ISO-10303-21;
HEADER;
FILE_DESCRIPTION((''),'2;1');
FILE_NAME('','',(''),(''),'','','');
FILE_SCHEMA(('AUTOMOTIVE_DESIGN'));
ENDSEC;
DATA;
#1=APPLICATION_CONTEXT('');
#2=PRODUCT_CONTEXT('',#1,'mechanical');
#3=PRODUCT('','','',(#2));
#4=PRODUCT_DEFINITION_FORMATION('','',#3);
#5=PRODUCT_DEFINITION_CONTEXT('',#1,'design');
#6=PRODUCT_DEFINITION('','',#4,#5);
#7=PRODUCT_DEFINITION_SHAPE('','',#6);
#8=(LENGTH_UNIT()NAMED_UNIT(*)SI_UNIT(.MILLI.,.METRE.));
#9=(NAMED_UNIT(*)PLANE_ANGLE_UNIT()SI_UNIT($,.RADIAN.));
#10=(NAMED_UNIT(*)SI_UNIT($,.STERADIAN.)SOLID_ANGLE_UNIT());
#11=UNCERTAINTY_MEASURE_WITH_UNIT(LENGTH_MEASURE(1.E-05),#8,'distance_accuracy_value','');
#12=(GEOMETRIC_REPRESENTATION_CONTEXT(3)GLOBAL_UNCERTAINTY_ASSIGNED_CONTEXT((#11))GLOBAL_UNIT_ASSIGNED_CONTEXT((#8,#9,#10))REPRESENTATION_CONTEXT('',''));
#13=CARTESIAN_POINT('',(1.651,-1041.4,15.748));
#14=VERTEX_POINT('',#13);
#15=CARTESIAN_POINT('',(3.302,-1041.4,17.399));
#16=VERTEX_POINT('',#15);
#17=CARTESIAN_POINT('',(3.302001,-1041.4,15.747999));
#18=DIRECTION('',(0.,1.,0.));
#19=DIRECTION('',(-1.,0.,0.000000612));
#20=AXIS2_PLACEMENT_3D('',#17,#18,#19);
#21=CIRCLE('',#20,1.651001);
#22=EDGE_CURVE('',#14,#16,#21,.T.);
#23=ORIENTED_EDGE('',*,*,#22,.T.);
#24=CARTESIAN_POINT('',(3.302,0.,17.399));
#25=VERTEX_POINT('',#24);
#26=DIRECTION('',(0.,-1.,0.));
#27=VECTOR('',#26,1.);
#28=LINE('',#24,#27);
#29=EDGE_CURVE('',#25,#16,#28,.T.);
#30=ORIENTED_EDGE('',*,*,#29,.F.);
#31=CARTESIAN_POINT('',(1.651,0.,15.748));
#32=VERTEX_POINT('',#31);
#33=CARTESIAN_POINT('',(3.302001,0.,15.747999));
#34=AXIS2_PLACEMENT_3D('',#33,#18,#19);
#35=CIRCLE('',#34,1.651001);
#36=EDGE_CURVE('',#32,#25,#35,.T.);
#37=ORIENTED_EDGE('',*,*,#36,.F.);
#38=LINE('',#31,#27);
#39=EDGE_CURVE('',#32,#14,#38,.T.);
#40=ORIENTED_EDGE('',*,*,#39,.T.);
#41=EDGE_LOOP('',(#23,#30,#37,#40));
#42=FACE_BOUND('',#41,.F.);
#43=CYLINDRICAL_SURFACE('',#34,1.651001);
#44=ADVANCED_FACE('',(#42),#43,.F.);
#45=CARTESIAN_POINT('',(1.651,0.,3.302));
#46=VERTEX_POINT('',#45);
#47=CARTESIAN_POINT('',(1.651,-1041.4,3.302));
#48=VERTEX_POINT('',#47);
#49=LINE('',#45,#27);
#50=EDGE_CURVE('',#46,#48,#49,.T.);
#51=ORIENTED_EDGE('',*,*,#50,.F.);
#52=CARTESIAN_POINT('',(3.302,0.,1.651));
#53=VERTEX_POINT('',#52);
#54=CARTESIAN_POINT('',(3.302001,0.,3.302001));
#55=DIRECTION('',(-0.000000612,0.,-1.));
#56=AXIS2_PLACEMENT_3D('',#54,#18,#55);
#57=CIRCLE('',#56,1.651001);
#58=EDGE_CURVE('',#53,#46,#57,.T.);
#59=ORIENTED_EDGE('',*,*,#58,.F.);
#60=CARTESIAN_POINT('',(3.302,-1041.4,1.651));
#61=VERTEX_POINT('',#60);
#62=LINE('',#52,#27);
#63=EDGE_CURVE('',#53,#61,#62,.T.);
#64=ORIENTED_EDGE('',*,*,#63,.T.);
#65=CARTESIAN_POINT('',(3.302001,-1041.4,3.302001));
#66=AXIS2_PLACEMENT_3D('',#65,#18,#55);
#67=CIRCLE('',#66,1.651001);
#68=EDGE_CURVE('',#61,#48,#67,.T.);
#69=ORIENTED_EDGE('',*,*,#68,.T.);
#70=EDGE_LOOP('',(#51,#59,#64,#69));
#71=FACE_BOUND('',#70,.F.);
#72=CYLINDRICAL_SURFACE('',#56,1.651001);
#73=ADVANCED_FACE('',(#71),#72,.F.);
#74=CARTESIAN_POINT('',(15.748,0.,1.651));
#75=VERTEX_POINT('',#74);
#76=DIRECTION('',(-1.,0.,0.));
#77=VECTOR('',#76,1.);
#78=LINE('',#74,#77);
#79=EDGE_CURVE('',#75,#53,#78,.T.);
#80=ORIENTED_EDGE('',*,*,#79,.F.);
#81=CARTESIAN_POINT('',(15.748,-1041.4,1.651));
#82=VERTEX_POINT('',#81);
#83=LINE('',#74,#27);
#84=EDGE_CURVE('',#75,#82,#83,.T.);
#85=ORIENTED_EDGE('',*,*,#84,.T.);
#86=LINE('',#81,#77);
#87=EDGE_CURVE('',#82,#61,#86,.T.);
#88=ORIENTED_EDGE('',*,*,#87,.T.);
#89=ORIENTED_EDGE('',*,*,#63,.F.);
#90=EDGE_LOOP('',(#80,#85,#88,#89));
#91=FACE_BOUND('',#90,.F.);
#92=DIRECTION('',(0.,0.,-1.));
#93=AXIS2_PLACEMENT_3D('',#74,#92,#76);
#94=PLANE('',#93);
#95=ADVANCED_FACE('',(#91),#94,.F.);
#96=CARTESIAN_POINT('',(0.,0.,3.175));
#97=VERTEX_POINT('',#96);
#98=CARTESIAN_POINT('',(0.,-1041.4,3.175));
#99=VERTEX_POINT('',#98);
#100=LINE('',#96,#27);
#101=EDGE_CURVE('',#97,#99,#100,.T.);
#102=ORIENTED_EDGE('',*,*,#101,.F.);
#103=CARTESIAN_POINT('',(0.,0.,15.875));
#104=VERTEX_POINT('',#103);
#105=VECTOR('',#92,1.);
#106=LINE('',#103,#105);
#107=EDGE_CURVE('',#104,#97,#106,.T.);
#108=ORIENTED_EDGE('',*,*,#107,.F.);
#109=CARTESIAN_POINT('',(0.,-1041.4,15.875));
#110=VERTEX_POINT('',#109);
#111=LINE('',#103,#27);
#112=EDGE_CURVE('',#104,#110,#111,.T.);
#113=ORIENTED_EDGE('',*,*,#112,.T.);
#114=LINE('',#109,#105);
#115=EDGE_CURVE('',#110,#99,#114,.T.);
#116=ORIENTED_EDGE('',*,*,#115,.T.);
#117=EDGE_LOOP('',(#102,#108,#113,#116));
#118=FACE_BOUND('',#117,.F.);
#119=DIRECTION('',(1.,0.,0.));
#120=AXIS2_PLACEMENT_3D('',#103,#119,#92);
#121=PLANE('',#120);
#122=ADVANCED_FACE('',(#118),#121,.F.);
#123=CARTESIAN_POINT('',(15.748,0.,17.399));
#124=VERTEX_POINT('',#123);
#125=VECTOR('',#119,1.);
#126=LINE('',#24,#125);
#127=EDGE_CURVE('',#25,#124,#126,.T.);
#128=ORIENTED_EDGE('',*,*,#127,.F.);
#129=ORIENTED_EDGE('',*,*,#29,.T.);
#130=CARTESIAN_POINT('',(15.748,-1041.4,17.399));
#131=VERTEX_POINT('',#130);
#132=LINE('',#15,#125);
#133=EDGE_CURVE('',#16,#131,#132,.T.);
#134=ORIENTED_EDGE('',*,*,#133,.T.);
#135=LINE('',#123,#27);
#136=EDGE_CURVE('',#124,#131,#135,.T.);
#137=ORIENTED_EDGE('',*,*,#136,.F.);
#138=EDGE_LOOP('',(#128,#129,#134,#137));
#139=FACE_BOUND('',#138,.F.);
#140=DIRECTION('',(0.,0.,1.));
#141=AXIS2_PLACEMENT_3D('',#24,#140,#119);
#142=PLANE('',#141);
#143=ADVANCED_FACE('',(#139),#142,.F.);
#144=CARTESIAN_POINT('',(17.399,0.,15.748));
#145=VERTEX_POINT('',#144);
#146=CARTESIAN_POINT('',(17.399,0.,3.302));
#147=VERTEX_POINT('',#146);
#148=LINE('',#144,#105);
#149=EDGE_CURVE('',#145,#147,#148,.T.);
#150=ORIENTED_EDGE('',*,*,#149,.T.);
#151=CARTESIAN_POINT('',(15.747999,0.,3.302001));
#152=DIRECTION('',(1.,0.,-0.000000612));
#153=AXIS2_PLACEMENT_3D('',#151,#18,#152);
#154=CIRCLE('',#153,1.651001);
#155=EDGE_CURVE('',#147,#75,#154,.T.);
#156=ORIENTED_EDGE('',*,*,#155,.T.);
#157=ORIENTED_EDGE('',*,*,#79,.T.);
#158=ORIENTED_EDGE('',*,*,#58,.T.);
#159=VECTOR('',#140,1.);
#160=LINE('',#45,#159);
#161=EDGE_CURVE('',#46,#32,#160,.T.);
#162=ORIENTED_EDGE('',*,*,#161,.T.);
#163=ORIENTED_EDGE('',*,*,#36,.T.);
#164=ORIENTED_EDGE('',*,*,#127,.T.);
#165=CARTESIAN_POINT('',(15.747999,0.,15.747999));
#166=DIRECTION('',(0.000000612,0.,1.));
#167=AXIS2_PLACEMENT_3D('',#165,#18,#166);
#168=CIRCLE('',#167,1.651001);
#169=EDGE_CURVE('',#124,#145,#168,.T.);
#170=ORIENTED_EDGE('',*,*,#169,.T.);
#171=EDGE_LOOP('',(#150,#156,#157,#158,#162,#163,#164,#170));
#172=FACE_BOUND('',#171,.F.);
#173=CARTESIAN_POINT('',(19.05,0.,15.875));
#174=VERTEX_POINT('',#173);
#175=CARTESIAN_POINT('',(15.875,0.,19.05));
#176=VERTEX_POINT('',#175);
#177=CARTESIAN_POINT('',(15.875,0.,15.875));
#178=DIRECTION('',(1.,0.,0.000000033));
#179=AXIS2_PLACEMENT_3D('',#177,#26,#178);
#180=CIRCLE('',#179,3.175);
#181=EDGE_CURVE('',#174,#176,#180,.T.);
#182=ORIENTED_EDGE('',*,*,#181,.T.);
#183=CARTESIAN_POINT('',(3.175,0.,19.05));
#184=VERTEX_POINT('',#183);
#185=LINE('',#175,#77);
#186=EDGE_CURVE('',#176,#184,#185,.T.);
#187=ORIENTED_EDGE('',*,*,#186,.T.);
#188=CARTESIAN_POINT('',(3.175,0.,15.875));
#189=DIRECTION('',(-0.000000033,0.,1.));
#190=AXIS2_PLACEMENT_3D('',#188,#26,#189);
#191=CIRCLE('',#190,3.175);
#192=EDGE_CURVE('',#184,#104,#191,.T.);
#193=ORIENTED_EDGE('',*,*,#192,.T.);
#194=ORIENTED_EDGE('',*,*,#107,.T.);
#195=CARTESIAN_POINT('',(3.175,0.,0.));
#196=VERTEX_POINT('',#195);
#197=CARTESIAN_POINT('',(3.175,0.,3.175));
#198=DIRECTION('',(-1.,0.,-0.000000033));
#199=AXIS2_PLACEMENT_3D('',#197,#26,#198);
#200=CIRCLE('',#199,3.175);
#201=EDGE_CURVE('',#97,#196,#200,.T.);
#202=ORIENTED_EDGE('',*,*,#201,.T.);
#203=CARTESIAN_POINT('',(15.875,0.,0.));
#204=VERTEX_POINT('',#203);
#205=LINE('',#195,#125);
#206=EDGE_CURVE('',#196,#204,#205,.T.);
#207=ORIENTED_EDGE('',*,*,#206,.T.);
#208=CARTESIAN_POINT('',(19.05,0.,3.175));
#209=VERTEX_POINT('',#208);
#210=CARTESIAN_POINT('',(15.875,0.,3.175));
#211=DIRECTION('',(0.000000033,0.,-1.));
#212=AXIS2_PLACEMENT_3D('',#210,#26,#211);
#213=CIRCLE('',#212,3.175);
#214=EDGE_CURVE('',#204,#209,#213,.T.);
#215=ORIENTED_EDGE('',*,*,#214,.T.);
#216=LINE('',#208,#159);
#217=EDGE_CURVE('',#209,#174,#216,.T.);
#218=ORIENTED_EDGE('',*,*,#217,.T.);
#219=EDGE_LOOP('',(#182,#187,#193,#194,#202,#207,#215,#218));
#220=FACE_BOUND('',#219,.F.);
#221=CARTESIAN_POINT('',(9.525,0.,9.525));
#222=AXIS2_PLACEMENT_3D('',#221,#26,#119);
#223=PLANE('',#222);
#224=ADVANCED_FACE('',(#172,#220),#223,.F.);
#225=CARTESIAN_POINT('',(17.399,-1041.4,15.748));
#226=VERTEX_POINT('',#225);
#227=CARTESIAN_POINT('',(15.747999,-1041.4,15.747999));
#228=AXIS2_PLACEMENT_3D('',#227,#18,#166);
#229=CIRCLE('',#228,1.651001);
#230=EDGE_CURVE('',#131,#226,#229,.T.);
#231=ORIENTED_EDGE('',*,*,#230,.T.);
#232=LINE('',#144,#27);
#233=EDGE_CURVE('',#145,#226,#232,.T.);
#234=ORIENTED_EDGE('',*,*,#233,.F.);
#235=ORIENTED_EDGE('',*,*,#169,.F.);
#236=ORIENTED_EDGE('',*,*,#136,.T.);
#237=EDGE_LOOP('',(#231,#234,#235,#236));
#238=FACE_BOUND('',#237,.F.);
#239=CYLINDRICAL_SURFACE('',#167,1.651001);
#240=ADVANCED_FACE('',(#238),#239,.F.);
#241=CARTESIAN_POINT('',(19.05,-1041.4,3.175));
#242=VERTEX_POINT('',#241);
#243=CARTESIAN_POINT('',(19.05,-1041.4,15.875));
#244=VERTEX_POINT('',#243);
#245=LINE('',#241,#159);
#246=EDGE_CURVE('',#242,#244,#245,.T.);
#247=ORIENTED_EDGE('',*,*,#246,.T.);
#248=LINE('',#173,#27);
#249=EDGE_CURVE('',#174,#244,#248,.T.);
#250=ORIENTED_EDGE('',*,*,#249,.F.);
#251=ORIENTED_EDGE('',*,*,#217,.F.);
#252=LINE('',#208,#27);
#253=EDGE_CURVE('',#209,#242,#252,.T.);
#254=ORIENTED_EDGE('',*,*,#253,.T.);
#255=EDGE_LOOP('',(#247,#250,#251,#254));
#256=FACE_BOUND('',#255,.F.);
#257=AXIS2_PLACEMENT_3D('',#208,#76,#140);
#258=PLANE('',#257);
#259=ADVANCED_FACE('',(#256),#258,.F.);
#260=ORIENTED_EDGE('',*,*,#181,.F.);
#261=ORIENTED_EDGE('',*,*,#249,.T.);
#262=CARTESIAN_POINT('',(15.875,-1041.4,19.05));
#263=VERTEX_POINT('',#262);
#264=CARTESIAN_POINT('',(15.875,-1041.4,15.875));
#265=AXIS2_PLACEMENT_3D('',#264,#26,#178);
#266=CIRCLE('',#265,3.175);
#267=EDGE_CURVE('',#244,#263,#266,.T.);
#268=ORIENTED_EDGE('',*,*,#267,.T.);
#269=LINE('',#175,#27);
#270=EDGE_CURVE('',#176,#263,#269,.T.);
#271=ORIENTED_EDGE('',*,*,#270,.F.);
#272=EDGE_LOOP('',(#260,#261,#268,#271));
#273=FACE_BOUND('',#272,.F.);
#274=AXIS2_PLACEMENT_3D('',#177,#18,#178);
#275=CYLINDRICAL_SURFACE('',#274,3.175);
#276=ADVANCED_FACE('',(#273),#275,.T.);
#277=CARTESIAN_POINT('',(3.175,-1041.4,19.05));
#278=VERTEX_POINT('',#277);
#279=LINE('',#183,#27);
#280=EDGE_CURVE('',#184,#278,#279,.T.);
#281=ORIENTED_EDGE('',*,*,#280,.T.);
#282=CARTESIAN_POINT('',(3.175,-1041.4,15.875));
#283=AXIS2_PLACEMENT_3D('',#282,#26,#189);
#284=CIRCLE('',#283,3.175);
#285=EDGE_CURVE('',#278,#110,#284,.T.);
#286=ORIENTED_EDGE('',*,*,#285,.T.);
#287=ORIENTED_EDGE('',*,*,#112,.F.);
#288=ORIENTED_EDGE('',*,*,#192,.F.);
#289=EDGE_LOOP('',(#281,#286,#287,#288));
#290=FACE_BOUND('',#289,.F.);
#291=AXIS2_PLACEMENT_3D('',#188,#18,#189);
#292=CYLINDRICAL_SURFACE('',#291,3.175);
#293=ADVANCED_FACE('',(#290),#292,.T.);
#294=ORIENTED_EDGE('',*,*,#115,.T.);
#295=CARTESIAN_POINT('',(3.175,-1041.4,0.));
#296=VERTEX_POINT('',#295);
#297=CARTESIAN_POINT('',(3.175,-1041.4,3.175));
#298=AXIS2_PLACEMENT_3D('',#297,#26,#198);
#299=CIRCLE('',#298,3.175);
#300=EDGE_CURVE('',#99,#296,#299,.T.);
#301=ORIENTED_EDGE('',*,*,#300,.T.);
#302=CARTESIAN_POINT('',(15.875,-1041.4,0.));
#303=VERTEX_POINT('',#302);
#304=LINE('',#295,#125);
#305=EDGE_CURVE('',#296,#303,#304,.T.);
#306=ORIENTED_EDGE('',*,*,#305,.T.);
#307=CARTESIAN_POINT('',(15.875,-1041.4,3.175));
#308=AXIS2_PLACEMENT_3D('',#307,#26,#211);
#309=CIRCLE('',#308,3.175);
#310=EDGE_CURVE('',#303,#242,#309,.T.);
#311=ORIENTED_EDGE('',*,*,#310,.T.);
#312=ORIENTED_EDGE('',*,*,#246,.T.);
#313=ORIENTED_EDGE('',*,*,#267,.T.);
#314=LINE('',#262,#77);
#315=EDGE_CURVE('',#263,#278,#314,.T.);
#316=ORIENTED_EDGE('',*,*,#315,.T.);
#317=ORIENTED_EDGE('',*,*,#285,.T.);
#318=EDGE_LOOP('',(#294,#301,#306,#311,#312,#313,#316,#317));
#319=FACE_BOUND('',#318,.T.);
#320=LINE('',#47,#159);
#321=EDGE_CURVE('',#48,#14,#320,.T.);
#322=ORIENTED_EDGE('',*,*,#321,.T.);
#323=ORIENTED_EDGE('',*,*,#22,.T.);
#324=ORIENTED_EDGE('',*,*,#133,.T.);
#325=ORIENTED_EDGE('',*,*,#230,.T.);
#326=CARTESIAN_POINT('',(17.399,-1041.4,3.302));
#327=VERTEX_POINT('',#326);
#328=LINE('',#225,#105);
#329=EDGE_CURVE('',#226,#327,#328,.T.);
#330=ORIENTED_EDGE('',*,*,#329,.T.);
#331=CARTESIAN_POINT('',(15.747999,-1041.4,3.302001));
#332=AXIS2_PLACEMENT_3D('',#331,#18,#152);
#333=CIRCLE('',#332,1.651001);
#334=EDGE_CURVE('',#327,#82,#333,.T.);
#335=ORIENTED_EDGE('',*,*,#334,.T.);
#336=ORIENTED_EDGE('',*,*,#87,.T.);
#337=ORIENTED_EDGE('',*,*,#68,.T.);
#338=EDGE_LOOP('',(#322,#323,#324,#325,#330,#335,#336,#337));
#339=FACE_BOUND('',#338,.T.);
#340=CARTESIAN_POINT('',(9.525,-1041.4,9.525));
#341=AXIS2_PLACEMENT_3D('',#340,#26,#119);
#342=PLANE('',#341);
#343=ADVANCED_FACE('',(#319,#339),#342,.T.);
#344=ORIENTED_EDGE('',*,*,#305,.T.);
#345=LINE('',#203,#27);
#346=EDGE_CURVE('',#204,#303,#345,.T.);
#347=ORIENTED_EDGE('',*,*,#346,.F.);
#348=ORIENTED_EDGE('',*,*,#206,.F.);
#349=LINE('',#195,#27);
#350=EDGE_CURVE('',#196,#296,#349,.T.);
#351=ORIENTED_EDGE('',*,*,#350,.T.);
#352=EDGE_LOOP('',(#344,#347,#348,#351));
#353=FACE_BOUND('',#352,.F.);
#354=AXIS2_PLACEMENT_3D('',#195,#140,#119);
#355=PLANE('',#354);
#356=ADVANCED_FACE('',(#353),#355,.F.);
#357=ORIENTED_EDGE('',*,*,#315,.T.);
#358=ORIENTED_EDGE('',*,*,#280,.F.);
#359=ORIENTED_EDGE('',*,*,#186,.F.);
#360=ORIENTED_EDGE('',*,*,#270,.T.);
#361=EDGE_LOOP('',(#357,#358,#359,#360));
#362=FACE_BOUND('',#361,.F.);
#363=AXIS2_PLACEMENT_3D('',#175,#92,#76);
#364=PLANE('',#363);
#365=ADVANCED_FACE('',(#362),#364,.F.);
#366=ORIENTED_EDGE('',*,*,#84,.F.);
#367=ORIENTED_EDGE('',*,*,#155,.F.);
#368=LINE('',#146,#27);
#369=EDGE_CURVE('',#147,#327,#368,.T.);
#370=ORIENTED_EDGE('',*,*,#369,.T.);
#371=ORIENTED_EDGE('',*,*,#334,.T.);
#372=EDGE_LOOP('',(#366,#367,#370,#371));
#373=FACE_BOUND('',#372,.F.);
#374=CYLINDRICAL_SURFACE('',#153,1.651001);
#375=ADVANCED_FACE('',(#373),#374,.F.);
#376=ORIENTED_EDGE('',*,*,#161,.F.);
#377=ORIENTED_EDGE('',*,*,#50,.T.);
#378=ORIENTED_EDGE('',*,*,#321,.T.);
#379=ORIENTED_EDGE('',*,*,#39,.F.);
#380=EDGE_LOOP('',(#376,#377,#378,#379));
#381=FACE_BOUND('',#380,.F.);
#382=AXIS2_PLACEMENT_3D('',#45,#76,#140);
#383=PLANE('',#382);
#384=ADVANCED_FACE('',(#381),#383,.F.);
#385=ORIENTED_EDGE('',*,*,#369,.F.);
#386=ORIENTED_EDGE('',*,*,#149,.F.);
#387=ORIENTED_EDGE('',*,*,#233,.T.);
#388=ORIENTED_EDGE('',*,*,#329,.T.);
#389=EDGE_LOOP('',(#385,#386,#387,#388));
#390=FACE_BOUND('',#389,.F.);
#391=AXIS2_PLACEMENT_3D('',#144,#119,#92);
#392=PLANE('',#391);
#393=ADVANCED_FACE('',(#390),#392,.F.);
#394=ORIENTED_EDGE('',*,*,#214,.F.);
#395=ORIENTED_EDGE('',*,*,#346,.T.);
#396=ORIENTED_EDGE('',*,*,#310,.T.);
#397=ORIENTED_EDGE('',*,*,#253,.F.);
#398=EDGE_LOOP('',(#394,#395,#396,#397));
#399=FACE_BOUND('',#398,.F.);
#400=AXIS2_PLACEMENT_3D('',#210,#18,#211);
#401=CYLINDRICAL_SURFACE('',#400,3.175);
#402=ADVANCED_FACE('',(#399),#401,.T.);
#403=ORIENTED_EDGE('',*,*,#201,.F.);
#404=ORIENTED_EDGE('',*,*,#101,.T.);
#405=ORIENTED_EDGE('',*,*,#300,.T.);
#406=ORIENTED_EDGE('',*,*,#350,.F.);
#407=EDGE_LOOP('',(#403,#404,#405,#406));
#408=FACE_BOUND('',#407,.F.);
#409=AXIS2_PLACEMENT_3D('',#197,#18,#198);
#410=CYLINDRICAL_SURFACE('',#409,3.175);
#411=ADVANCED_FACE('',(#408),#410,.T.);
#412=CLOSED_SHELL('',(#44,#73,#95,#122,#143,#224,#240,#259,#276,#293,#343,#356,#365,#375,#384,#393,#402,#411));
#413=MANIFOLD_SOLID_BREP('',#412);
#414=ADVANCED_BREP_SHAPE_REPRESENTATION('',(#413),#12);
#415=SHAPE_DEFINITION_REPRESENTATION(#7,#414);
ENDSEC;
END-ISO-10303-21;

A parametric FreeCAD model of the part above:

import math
import FreeCAD as App
import Part
import Sketcher
Q = App.Units.Quantity

doc = App.newDocument("Part")
body = doc.addObject("PartDesign::Body", "Body")

# Sketch on XZ plane
sketch1 = doc.addObject("Sketcher::SketchObject", "Sketch")
body.addObject(sketch1)
sketch1.AttachmentSupport = (doc.XZ_Plane, [""])
sketch1.MapMode = "FlatFace"
sketch1.addGeometry(Part.ArcOfCircle(Part.Circle(App.Vector(3.2, 3.2, 0), App.Vector(0, 0, 1), 3.2), math.radians(-180), math.radians(-90)), False)
sketch1.addGeometry(Part.LineSegment(App.Vector(3.2, 0, 0), App.Vector(15.9, 0, 0)), False)
sketch1.addGeometry(Part.ArcOfCircle(Part.Circle(App.Vector(15.9, 3.2, 0), App.Vector(0, 0, 1), 3.2), math.radians(-90), math.radians(0)), False)
sketch1.addGeometry(Part.LineSegment(App.Vector(19.1, 3.2, 0), App.Vector(19.1, 15.9, 0)), False)
sketch1.addGeometry(Part.ArcOfCircle(Part.Circle(App.Vector(15.9, 15.9, 0), App.Vector(0, 0, 1), 3.2), math.radians(0), math.radians(90)), False)
sketch1.addGeometry(Part.LineSegment(App.Vector(15.9, 19.1, 0), App.Vector(3.2, 19.1, 0)), False)
sketch1.addGeometry(Part.ArcOfCircle(Part.Circle(App.Vector(3.2, 15.9, 0), App.Vector(0, 0, 1), 3.2), math.radians(90), math.radians(180)), False)
sketch1.addGeometry(Part.LineSegment(App.Vector(0, 15.9, 0), App.Vector(0, 3.2, 0)), False)
sketch1.addGeometry(Part.ArcOfCircle(Part.Circle(App.Vector(15.7, 15.7, 0), App.Vector(0, 0, 1), 1.7), math.radians(0), math.radians(90)), False)
sketch1.addGeometry(Part.LineSegment(App.Vector(17.4, 15.7, 0), App.Vector(17.4, 3.3, 0)), False)
sketch1.addGeometry(Part.ArcOfCircle(Part.Circle(App.Vector(15.7, 3.3, 0), App.Vector(0, 0, 1), 1.7), math.radians(-90), math.radians(0)), False)
sketch1.addGeometry(Part.LineSegment(App.Vector(15.7, 1.7, 0), App.Vector(3.3, 1.7, 0)), False)
sketch1.addGeometry(Part.ArcOfCircle(Part.Circle(App.Vector(3.3, 3.3, 0), App.Vector(0, 0, 1), 1.7), math.radians(-180), math.radians(-90)), False)
sketch1.addGeometry(Part.LineSegment(App.Vector(1.7, 3.3, 0), App.Vector(1.7, 15.7, 0)), False)
sketch1.addGeometry(Part.ArcOfCircle(Part.Circle(App.Vector(3.3, 15.7, 0), App.Vector(0, 0, 1), 1.7), math.radians(90), math.radians(180)), False)
sketch1.addGeometry(Part.LineSegment(App.Vector(3.3, 17.4, 0), App.Vector(15.7, 17.4, 0)), False)
sketch1.addConstraint(Sketcher.Constraint("Tangent", 0, 2, 1, 1))
sketch1.addConstraint(Sketcher.Constraint("Tangent", 1, 2, 2, 1))
sketch1.addConstraint(Sketcher.Constraint("Tangent", 2, 2, 3, 1))
sketch1.addConstraint(Sketcher.Constraint("Tangent", 3, 2, 4, 1))
sketch1.addConstraint(Sketcher.Constraint("Tangent", 4, 2, 5, 1))
sketch1.addConstraint(Sketcher.Constraint("Tangent", 5, 2, 6, 1))
sketch1.addConstraint(Sketcher.Constraint("Tangent", 6, 2, 7, 1))
sketch1.addConstraint(Sketcher.Constraint("Tangent", 7, 2, 0, 1))
sketch1.addConstraint(Sketcher.Constraint("Tangent", 8, 1, 9, 1))
sketch1.addConstraint(Sketcher.Constraint("Tangent", 9, 2, 10, 2))
sketch1.addConstraint(Sketcher.Constraint("Tangent", 10, 1, 11, 1))
sketch1.addConstraint(Sketcher.Constraint("Tangent", 11, 2, 12, 2))
sketch1.addConstraint(Sketcher.Constraint("Tangent", 12, 1, 13, 1))
sketch1.addConstraint(Sketcher.Constraint("Tangent", 13, 2, 14, 2))
sketch1.addConstraint(Sketcher.Constraint("Tangent", 14, 1, 15, 1))
sketch1.addConstraint(Sketcher.Constraint("Tangent", 15, 2, 8, 2))
sketch1.addConstraint(Sketcher.Constraint("Horizontal", 1))
sketch1.addConstraint(Sketcher.Constraint("Vertical", 3))
sketch1.addConstraint(Sketcher.Constraint("Horizontal", 5))
sketch1.addConstraint(Sketcher.Constraint("Vertical", 7))
sketch1.addConstraint(Sketcher.Constraint("Vertical", 9))
sketch1.addConstraint(Sketcher.Constraint("Horizontal", 11))
sketch1.addConstraint(Sketcher.Constraint("Vertical", 13))
sketch1.addConstraint(Sketcher.Constraint("Horizontal", 15))
sketch1.addConstraint(Sketcher.Constraint("Equal", 0, 2))
sketch1.addConstraint(Sketcher.Constraint("Equal", 2, 4))
sketch1.addConstraint(Sketcher.Constraint("Equal", 4, 6))
sketch1.addConstraint(Sketcher.Constraint("Equal", 8, 10))
sketch1.addConstraint(Sketcher.Constraint("Equal", 10, 12))
sketch1.addConstraint(Sketcher.Constraint("Equal", 12, 14))
sketch1.addConstraint(Sketcher.Constraint("PointOnObject", 0, 2, -1))
sketch1.addConstraint(Sketcher.Constraint("PointOnObject", 6, 2, -2))
sketch1.addConstraint(Sketcher.Constraint("Equal", 5, 3))
sketch1.addConstraint(Sketcher.Constraint("Equal", 15, 9))
sketch1.addConstraint(Sketcher.Constraint("DistanceX", 1, 1, 1, 2, Q("0.5 in")))
sketch1.addConstraint(Sketcher.Constraint("Radius", 0, Q("0.125 in")))
sketch1.addConstraint(Sketcher.Constraint("Radius", 8, Q("0.065 in")))
sketch1.addConstraint(Sketcher.Constraint("DistanceX", 11, 2, 11, 1, Q("0.49 in")))
sketch1.addConstraint(Sketcher.Constraint("DistanceX", -1, 1, 8, 3, Q("0.62 in")))
sketch1.addConstraint(Sketcher.Constraint("DistanceY", -1, 1, 8, 3, Q("0.62 in")))
pad1 = doc.addObject("PartDesign::Pad", "Pad")
body.addObject(pad1)
pad1.Profile = sketch1
pad1.Length = Q("41 in")

doc.recompute()
